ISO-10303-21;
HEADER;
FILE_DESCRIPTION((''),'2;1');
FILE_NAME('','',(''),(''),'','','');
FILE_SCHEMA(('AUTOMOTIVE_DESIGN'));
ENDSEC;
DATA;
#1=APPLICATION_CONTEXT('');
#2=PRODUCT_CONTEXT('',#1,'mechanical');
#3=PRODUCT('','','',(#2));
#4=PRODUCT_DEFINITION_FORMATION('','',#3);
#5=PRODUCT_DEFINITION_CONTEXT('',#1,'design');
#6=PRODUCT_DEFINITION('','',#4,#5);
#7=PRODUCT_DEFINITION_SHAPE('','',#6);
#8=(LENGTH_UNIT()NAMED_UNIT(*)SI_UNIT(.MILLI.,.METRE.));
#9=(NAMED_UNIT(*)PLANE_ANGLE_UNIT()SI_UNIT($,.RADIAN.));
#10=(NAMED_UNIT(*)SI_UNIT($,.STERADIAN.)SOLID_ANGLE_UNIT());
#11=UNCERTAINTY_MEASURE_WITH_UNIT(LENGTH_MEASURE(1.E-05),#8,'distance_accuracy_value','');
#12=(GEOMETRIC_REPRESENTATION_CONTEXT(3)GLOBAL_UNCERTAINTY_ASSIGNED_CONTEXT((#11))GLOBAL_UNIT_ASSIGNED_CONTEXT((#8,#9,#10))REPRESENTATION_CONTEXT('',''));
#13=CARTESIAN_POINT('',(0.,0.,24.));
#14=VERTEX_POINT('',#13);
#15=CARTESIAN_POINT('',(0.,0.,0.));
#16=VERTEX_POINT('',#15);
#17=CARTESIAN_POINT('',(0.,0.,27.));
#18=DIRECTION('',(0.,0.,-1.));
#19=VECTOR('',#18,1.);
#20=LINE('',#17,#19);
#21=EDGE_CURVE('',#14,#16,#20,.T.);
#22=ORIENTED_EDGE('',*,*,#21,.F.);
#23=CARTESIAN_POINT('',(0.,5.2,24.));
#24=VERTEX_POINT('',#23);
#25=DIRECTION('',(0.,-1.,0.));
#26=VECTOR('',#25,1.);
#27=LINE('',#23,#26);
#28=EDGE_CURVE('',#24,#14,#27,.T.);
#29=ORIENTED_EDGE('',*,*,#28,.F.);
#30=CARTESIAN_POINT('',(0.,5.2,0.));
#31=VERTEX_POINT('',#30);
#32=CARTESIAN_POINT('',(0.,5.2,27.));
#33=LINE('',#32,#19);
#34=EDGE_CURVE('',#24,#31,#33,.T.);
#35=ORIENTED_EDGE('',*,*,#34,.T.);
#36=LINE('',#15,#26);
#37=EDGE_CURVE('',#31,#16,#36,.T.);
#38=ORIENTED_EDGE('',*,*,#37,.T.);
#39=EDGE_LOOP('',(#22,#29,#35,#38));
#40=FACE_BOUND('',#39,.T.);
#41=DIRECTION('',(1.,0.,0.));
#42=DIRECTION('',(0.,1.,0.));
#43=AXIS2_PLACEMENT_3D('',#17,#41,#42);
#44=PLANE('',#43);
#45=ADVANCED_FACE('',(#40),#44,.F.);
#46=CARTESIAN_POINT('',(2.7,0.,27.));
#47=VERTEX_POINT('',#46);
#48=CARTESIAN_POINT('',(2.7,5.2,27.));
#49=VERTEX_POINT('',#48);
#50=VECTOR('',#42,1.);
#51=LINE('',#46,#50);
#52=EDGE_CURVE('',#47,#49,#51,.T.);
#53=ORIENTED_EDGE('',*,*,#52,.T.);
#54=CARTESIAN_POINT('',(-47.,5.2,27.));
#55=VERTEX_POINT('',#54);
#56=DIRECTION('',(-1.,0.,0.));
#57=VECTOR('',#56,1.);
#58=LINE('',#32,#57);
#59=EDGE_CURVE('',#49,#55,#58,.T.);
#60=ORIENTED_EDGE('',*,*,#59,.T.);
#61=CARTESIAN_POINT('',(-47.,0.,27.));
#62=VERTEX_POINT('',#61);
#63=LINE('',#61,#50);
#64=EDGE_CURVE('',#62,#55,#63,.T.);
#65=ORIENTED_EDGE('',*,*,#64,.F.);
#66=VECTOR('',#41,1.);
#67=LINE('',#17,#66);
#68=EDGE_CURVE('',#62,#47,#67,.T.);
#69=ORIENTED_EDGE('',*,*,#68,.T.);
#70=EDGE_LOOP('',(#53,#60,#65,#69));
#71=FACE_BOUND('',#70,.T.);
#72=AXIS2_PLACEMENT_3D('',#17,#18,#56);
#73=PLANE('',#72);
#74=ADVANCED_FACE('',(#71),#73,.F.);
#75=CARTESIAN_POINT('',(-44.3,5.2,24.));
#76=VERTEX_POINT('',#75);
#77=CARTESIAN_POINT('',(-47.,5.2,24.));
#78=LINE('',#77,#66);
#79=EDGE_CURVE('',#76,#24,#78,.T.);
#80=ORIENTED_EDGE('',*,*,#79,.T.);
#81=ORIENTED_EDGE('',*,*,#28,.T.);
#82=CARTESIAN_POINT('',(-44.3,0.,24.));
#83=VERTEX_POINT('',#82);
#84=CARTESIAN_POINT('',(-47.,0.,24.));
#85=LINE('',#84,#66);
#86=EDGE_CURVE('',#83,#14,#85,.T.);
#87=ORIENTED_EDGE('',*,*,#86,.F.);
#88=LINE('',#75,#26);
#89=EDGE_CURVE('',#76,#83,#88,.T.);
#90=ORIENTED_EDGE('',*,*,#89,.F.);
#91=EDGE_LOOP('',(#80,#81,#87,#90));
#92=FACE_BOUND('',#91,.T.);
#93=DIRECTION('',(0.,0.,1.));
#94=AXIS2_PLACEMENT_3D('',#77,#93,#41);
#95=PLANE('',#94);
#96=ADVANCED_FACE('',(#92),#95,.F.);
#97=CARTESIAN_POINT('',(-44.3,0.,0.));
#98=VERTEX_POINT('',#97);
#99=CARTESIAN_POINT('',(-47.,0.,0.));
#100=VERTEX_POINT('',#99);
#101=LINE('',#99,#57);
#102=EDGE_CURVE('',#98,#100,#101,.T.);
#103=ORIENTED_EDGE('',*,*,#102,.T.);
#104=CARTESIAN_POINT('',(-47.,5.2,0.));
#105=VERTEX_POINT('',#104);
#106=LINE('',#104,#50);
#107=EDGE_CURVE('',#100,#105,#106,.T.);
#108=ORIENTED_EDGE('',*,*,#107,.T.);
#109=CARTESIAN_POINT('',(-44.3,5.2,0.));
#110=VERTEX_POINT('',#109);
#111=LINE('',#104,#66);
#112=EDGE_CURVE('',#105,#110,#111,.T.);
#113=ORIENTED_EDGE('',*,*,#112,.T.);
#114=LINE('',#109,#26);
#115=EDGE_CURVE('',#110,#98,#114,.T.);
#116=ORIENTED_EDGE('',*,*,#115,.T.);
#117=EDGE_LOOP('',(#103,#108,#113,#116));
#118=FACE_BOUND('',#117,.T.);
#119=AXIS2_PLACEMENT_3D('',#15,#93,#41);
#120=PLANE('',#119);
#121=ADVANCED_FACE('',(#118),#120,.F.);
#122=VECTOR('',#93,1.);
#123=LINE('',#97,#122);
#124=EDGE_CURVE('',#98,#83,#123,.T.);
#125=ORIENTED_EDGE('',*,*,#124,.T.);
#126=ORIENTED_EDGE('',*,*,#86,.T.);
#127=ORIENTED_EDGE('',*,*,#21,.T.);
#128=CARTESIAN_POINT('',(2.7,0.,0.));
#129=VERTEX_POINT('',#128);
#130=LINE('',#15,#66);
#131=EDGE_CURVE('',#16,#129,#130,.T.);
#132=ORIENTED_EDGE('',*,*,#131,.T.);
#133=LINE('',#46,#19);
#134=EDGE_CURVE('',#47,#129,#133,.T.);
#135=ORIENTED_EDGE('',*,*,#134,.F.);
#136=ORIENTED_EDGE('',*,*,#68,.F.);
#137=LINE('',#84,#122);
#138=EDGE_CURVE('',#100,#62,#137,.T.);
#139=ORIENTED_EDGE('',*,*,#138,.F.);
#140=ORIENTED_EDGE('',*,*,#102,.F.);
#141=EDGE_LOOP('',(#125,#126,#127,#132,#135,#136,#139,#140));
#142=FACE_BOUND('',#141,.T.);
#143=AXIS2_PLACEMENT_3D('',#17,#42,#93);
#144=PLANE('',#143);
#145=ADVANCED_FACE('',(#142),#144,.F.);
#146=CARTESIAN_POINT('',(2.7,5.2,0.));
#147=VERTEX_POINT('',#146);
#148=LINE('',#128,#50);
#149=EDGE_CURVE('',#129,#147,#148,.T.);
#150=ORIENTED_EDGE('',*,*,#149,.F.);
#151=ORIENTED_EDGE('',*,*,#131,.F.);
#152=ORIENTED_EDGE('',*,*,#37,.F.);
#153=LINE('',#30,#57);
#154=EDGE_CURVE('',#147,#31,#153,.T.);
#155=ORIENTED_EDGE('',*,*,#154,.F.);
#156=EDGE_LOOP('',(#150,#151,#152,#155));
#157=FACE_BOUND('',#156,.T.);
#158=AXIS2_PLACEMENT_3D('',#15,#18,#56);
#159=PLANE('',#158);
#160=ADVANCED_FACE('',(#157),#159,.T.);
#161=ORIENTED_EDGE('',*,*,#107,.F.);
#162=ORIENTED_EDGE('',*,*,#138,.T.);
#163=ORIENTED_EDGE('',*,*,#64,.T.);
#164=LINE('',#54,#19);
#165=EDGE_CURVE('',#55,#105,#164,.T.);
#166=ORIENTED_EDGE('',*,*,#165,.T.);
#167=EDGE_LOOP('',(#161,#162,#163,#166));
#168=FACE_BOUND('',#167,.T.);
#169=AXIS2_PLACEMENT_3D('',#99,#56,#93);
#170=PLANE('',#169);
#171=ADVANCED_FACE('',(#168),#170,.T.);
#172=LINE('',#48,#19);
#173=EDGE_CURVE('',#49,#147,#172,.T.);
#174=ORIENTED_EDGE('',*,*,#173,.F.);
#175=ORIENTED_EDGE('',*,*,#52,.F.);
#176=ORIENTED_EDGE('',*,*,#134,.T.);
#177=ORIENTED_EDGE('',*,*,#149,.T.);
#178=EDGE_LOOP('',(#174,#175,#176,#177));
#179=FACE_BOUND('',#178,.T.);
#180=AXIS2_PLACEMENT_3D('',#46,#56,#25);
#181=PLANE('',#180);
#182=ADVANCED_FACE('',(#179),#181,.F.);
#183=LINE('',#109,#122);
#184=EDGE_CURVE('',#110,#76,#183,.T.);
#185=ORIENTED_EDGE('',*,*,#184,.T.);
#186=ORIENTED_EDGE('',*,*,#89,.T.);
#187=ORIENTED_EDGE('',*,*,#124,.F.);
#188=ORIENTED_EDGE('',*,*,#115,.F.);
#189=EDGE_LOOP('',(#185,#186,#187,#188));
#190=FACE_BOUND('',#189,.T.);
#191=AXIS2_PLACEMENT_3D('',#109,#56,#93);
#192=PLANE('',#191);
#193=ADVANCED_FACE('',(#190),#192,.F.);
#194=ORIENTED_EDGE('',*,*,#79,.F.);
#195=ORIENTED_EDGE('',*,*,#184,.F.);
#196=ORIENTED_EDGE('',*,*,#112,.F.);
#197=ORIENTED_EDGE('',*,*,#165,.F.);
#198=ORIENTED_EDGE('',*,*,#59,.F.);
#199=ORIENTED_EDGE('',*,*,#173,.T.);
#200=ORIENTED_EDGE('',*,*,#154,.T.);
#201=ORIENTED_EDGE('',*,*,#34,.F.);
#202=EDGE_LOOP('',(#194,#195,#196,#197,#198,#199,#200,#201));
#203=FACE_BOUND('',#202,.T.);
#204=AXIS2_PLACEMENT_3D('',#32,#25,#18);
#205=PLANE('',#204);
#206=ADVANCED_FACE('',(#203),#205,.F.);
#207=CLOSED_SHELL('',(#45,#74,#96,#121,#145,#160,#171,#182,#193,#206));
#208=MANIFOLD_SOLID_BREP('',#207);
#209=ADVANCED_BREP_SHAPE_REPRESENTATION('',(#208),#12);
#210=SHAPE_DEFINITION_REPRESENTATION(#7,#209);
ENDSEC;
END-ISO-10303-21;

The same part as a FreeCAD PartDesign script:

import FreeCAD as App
import Part
import Sketcher
from FreeCAD import Vector
Q = App.Units.Quantity

doc = App.newDocument("Part")
body = doc.addObject("PartDesign::Body", "Body")

# Sketch on XY plane
sketch1 = body.newObject("Sketcher::SketchObject", "Sketch")
sketch1.AttachmentSupport = (doc.getObject("XY_Plane"), [""])
sketch1.MapMode = "FlatFace"
sketch1.addGeometry([
    Part.LineSegment(Vector(0, 5.2, 0), Vector(0, 0, 0)),
    Part.LineSegment(Vector(0, 0, 0), Vector(2.7, 0, 0)),
    Part.LineSegment(Vector(2.7, 0, 0), Vector(2.7, 5.2, 0)),
    Part.LineSegment(Vector(2.7, 5.2, 0), Vector(0, 5.2, 0)),
], False)
sketch1.addConstraint([
    Sketcher.Constraint("Coincident", 0, 2, 1, 1),
    Sketcher.Constraint("Coincident", 1, 2, 2, 1),
    Sketcher.Constraint("Coincident", 2, 2, 3, 1),
    Sketcher.Constraint("Coincident", 3, 2, 0, 1),
    Sketcher.Constraint("Vertical", 0),
    Sketcher.Constraint("Horizontal", 1),
    Sketcher.Constraint("Vertical", 2),
    Sketcher.Constraint("Horizontal", 3),
    Sketcher.Constraint("Coincident", 0, 2, -1, 1),
    Sketcher.Constraint("DistanceX", 1, 1, 1, 2, Q("2.7 mm")),
    Sketcher.Constraint("DistanceY", 0, 2, 0, 1, Q("5.2 mm")),
])
pad1 = body.newObject("PartDesign::Pad", "Pad")
pad1.Profile = sketch1
pad1.Length = 27

# Sketch on YZ plane
sketch2 = body.newObject("Sketcher::SketchObject", "Sketch001")
sketch2.AttachmentSupport = (doc.getObject("YZ_Plane"), [""])
sketch2.MapMode = "FlatFace"
sketch2.addGeometry([
    Part.LineSegment(Vector(5.2, 24, 0), Vector(0, 24, 0)),
    Part.LineSegment(Vector(0, 24, 0), Vector(0, 27, 0)),
    Part.LineSegment(Vector(0, 27, 0), Vector(5.2, 27, 0)),
    Part.LineSegment(Vector(5.2, 27, 0), Vector(5.2, 24, 0)),
], False)
sketch2.addConstraint([
    Sketcher.Constraint("Coincident", 0, 2, 1, 1),
    Sketcher.Constraint("Coincident", 1, 2, 2, 1),
    Sketcher.Constraint("Coincident", 2, 2, 3, 1),
    Sketcher.Constraint("Coincident", 3, 2, 0, 1),
    Sketcher.Constraint("Horizontal", 0),
    Sketcher.Constraint("Vertical", 1),
    Sketcher.Constraint("Horizontal", 2),
    Sketcher.Constraint("Vertical", 3),
    Sketcher.Constraint("PointOnObject", 0, 2, -2),
    Sketcher.Constraint("DistanceY", 1, 1, 1, 2, Q("3 mm")),
    Sketcher.Constraint("DistanceX", 0, 2, 0, 1, Q("5.2 mm")),
    Sketcher.Constraint("DistanceY", -1, 1, 0, 2, Q("24 mm")),
])
pad2 = body.newObject("PartDesign::Pad", "Pad001")
pad2.Profile = sketch2
pad2.Length = 47
pad2.Reversed = True

# Sketch on XY plane
sketch3 = body.newObject("Sketcher::SketchObject", "Sketch002")
sketch3.AttachmentSupport = (doc.getObject("XY_Plane"), [""])
sketch3.MapMode = "FlatFace"
sketch3.AttachmentOffset = App.Placement(Vector(0, 0, 24), App.Rotation())
sketch3.addGeometry([
    Part.LineSegment(Vector(-44.3, 5.2, 0), Vector(-44.3, 0, 0)),
    Part.LineSegment(Vector(-44.3, 0, 0), Vector(-47, 0, 0)),
    Part.LineSegment(Vector(-47, 0, 0), Vector(-47, 5.2, 0)),
    Part.LineSegment(Vector(-47, 5.2, 0), Vector(-44.3, 5.2, 0)),
], False)
sketch3.addConstraint([
    Sketcher.Constraint("Coincident", 0, 2, 1, 1),
    Sketcher.Constraint("Coincident", 1, 2, 2, 1),
    Sketcher.Constraint("Coincident", 2, 2, 3, 1),
    Sketcher.Constraint("Coincident", 3, 2, 0, 1),
    Sketcher.Constraint("Vertical", 0),
    Sketcher.Constraint("Horizontal", 1),
    Sketcher.Constraint("Vertical", 2),
    Sketcher.Constraint("Horizontal", 3),
    Sketcher.Constraint("PointOnObject", 0, 2, -1),
    Sketcher.Constraint("DistanceX", 1, 2, 1, 1, Q("2.7 mm")),
    Sketcher.Constraint("DistanceY", 0, 2, 0, 1, Q("5.2 mm")),
    Sketcher.Constraint("DistanceX", 1, 2, -1, 1, Q("47 mm")),
])
pad3 = body.newObject("PartDesign::Pad", "Pad002")
pad3.Profile = sketch3
pad3.Length = 24
pad3.Reversed = True

doc.recompute()
